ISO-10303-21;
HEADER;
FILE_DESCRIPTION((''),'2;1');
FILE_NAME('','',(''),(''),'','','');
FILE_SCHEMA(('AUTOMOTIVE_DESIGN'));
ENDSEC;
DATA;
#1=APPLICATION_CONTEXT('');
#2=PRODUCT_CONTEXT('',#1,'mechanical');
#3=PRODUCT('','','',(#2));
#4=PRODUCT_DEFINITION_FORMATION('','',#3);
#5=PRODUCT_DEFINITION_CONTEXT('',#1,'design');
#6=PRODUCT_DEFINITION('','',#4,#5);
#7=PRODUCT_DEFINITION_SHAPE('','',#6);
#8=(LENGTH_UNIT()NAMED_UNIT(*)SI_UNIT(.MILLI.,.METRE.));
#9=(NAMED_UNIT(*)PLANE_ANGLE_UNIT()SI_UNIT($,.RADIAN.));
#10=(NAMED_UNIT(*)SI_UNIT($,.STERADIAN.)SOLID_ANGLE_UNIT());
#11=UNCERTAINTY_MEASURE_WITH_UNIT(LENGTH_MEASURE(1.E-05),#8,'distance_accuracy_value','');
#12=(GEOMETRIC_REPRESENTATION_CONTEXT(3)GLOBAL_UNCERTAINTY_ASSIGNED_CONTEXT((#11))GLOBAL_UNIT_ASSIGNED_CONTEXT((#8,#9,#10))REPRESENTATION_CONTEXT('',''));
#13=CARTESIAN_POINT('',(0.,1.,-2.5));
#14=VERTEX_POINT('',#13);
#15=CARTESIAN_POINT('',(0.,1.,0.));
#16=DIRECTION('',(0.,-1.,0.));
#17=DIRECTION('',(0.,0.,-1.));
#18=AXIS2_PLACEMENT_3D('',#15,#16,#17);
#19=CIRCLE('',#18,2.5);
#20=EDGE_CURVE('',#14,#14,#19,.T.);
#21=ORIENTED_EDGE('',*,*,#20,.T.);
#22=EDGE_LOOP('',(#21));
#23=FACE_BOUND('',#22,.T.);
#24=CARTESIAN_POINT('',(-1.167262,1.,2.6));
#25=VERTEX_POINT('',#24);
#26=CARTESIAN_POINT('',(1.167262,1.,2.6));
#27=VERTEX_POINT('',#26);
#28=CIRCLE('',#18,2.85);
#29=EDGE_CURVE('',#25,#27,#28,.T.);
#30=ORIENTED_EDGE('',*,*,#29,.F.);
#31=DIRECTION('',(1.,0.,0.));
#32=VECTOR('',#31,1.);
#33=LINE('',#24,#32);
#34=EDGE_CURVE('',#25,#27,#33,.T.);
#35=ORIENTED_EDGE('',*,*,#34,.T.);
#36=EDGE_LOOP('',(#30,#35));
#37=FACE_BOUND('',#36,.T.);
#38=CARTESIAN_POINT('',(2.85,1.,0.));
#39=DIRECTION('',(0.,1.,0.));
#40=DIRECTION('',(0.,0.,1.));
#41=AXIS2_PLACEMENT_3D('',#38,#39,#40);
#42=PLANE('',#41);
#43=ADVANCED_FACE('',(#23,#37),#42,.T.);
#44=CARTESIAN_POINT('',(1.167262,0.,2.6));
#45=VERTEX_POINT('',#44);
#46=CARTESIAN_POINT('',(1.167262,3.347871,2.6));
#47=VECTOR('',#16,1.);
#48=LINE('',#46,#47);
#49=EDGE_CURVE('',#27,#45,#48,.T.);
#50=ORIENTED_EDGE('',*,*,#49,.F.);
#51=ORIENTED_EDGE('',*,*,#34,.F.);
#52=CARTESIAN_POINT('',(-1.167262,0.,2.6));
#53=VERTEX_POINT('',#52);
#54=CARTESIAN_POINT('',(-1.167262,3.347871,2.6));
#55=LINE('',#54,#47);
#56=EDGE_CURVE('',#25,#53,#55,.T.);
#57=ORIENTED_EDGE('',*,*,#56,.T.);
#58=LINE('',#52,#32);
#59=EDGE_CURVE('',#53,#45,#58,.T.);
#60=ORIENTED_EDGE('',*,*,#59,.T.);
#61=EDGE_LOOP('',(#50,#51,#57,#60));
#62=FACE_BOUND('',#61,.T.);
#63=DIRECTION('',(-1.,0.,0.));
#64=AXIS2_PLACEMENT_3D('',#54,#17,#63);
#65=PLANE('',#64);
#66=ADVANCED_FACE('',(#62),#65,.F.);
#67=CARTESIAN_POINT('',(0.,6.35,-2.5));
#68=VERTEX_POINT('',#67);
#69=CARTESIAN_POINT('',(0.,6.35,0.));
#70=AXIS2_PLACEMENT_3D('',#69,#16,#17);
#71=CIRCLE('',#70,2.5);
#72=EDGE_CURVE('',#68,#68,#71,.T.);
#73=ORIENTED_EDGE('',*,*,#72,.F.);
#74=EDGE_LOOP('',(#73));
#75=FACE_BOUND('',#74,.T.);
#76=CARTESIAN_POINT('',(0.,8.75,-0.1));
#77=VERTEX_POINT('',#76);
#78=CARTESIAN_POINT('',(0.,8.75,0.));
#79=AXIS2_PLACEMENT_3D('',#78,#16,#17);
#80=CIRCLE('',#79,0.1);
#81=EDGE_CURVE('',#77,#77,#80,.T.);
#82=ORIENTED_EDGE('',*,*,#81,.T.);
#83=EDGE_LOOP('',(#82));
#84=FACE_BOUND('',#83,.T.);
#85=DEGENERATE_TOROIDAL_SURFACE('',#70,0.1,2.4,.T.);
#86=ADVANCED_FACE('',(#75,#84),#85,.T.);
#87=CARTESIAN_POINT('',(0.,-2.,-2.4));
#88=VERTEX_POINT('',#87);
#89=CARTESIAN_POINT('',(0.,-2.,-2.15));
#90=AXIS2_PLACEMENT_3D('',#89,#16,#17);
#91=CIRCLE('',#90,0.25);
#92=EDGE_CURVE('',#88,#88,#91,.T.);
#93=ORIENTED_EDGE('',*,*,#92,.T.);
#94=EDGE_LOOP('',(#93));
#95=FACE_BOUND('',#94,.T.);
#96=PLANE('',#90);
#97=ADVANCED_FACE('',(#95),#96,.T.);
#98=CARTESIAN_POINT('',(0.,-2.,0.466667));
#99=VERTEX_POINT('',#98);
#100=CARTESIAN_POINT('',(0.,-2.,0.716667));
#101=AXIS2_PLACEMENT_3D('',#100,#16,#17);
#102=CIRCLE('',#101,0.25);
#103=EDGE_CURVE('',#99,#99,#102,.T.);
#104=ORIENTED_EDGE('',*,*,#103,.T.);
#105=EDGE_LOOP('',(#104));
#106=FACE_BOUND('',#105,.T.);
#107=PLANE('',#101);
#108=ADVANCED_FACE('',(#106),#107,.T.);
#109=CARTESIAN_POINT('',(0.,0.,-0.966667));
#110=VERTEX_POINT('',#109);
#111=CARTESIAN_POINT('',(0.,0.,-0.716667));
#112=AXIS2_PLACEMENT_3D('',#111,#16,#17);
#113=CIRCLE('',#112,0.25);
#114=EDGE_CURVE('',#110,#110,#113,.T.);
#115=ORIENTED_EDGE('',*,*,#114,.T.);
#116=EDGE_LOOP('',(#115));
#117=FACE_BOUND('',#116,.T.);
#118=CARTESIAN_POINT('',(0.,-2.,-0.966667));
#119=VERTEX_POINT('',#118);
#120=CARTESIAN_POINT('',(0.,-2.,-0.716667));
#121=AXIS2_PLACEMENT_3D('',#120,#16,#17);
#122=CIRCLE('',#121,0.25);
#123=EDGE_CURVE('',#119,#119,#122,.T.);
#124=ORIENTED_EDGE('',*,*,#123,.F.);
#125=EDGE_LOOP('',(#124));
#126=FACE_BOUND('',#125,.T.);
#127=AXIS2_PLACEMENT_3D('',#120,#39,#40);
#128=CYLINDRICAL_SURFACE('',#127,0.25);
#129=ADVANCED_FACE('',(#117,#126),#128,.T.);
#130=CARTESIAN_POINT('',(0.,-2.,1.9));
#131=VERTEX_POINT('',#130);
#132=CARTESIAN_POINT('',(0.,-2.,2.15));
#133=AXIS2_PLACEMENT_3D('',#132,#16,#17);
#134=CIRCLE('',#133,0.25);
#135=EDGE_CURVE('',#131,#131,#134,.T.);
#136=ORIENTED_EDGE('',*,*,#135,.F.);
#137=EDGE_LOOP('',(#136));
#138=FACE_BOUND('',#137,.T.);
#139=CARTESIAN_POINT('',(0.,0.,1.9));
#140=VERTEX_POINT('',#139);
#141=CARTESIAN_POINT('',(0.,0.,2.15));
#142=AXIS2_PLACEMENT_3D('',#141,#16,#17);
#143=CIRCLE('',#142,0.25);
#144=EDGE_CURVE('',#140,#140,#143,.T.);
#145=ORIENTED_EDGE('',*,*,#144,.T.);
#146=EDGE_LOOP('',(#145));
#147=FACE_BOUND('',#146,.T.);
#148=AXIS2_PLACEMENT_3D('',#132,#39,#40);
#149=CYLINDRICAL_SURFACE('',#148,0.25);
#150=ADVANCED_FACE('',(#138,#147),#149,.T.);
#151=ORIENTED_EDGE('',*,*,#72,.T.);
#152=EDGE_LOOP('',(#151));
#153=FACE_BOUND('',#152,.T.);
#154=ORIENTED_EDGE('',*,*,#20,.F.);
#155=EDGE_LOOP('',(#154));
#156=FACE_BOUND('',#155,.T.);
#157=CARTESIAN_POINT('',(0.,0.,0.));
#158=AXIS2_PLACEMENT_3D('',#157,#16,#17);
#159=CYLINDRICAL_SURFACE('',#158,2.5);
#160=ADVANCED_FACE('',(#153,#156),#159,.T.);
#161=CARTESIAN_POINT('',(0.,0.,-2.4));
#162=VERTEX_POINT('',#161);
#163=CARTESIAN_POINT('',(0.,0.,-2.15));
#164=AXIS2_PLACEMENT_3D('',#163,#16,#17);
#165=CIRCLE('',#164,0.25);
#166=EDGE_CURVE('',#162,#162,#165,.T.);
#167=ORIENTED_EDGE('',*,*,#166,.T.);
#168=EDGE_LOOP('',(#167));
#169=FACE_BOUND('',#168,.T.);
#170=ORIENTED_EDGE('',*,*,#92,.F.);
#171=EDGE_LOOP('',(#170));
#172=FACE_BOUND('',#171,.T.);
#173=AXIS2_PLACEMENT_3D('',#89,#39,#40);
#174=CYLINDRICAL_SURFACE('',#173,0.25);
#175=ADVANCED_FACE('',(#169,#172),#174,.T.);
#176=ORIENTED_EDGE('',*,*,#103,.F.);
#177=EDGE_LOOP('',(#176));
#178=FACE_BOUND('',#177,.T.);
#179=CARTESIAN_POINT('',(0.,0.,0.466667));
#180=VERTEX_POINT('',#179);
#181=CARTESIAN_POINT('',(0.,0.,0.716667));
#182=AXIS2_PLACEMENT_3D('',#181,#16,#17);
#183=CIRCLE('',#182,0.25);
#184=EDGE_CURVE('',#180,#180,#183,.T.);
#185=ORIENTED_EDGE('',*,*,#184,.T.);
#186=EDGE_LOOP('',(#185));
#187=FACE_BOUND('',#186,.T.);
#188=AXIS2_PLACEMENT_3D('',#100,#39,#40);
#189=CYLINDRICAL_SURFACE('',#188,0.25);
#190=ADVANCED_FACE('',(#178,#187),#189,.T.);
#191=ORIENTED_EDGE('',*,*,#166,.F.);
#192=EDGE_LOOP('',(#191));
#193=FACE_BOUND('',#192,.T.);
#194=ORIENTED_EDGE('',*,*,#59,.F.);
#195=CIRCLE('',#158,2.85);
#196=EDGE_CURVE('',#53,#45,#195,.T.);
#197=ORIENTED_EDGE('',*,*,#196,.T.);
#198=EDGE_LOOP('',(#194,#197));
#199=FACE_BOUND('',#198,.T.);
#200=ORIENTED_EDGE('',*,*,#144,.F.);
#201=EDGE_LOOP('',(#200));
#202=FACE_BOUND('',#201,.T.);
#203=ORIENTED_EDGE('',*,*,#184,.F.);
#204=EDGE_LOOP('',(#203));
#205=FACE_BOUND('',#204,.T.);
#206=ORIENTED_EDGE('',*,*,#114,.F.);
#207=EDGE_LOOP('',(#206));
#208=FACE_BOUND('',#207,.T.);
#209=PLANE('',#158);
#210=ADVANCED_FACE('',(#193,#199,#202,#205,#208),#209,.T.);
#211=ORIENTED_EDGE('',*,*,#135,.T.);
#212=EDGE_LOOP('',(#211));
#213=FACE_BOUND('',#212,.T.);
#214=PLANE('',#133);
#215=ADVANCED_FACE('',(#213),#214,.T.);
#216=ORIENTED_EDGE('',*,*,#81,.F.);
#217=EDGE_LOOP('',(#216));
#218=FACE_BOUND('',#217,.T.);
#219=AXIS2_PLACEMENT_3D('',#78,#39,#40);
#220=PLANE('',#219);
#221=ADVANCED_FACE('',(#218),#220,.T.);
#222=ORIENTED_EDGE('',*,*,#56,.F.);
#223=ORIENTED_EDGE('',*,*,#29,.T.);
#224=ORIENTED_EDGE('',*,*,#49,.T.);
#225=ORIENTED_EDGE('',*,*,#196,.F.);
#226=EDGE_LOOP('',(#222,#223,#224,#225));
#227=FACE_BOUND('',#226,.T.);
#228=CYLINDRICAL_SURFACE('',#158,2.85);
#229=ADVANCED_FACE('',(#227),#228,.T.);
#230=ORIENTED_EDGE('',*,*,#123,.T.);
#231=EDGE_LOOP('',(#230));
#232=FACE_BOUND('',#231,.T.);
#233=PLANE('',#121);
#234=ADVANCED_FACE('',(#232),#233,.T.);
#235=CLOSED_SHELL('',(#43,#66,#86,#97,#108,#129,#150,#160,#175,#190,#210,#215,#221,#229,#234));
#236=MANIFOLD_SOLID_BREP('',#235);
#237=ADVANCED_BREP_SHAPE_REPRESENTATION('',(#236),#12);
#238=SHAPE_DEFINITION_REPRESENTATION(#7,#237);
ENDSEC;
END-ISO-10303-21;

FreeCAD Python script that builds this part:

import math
import FreeCAD as App
import Part
import Sketcher

doc = App.newDocument("Part")
body = doc.addObject("PartDesign::Body", "Body")

sketch1 = doc.addObject("Sketcher::SketchObject", "Sketch")
body.addObject(sketch1)
sketch1.AttachmentSupport = (doc.XY_Plane, [""])
sketch1.MapMode = "FlatFace"
sketch1.addGeometry([
    Part.LineSegment(App.Vector(0, 8.75, 0), App.Vector(0, 0, 0)),
    Part.LineSegment(App.Vector(0, 0, 0), App.Vector(2.85, 0, 0)),
    Part.LineSegment(App.Vector(2.85, 0, 0), App.Vector(2.85, 1, 0)),
    Part.LineSegment(App.Vector(2.85, 1, 0), App.Vector(2.5, 1, 0)),
    Part.LineSegment(App.Vector(2.5, 1, 0), App.Vector(2.5, 6.35, 0)),
    Part.ArcOfCircle(Part.Circle(App.Vector(0.1, 6.35, 0), App.Vector(0, 0, 1), 2.4), math.radians(0), math.radians(90)),
    Part.LineSegment(App.Vector(0.1, 8.75, 0), App.Vector(0, 8.75, 0)),
], False)
sketch1.addConstraint([
    Sketcher.Constraint("Coincident", 0, 2, 1, 1),
    Sketcher.Constraint("Coincident", 1, 2, 2, 1),
    Sketcher.Constraint("Coincident", 2, 2, 3, 1),
    Sketcher.Constraint("Coincident", 3, 2, 4, 1),
    Sketcher.Constraint("Tangent", 4, 2, 5, 1),
    Sketcher.Constraint("Tangent", 5, 2, 6, 1),
    Sketcher.Constraint("Coincident", 6, 2, 0, 1),
    Sketcher.Constraint("Vertical", 0),
    Sketcher.Constraint("Horizontal", 1),
    Sketcher.Constraint("Vertical", 2),
    Sketcher.Constraint("Horizontal", 3),
    Sketcher.Constraint("Vertical", 4),
    Sketcher.Constraint("Horizontal", 6),
    Sketcher.Constraint("Coincident", 0, 2, -1, 1),
    Sketcher.Constraint("Radius", 5, 2.4),
    Sketcher.Constraint("DistanceY", 2, 1, 2, 2, 1.0),
    Sketcher.Constraint("DistanceX", 6, 2, 6, 1, 0.1),
    Sketcher.Constraint("DistanceX", 1, 1, 1, 2, 2.85),
    Sketcher.Constraint("DistanceY", 0, 2, 0, 1, 8.75),
])
revolution = doc.addObject("PartDesign::Revolution", "Revolution")
body.addObject(revolution)
revolution.Profile = sketch1
revolution.ReferenceAxis = (sketch1, ["V_Axis"])
revolution.Angle = 360

sketch2 = doc.addObject("Sketcher::SketchObject", "Sketch001")
body.addObject(sketch2)
sketch2.AttachmentSupport = (doc.XZ_Plane, [""])
sketch2.MapMode = "FlatFace"
sketch2.addGeometry([
    Part.LineSegment(App.Vector(-1.2, 2.6, 0), App.Vector(1.2, 2.6, 0)),
    Part.ArcOfCircle(Part.Circle(App.Vector(0, 0, 0), App.Vector(0, 0, 1), 2.9), math.radians(66), math.radians(114)),
], False)
sketch2.addConstraint([
    Sketcher.Constraint("Coincident", 0, 1, 1, 2),
    Sketcher.Constraint("Coincident", 1, 1, 0, 2),
    Sketcher.Constraint("Horizontal", 0),
    Sketcher.Constraint("Coincident", 1, 3, -1, 1),
    Sketcher.Constraint("Radius", 1, 2.85),
    Sketcher.Constraint("DistanceY", -1, 1, 0, 1, 2.6),
])
pocket1 = doc.addObject("PartDesign::Pocket", "Pocket")
body.addObject(pocket1)
pocket1.Profile = sketch2
pocket1.Length = 1

sketch3 = doc.addObject("Sketcher::SketchObject", "Sketch002")
body.addObject(sketch3)
sketch3.AttachmentSupport = (doc.XZ_Plane, [""])
sketch3.MapMode = "FlatFace"
sketch3.addGeometry([
    Part.Circle(App.Vector(0, -2.15, 0), App.Vector(0, 0, 1), 0.25),
    Part.Circle(App.Vector(0, 2.15, 0), App.Vector(0, 0, 1), 0.25),
    Part.Circle(App.Vector(0, -0.72, 0), App.Vector(0, 0, 1), 0.25),
    Part.Circle(App.Vector(0, 0.72, 0), App.Vector(0, 0, 1), 0.25),
], False)
sketch3.addConstraint([
    Sketcher.Constraint("Equal", 0, 1),
    Sketcher.Constraint("Equal", 1, 2),
    Sketcher.Constraint("Equal", 2, 3),
    Sketcher.Constraint("Symmetric", 0, 3, 1, 3, -1, 1),
    Sketcher.Constraint("Symmetric", 2, 3, 3, 3, -1, 1),
    Sketcher.Constraint("PointOnObject", 0, 3, -2),
    Sketcher.Constraint("PointOnObject", 2, 3, -2),
    Sketcher.Constraint("Diameter", 0, 0.5),
    Sketcher.Constraint("DistanceY", 0, 3, 1, 3, 4.3),
    Sketcher.Constraint("DistanceY", 2, 3, -1, 1, 0.716667),
])
pad1 = doc.addObject("PartDesign::Pad", "Pad")
body.addObject(pad1)
pad1.Profile = sketch3
pad1.Length = 2

doc.recompute()
